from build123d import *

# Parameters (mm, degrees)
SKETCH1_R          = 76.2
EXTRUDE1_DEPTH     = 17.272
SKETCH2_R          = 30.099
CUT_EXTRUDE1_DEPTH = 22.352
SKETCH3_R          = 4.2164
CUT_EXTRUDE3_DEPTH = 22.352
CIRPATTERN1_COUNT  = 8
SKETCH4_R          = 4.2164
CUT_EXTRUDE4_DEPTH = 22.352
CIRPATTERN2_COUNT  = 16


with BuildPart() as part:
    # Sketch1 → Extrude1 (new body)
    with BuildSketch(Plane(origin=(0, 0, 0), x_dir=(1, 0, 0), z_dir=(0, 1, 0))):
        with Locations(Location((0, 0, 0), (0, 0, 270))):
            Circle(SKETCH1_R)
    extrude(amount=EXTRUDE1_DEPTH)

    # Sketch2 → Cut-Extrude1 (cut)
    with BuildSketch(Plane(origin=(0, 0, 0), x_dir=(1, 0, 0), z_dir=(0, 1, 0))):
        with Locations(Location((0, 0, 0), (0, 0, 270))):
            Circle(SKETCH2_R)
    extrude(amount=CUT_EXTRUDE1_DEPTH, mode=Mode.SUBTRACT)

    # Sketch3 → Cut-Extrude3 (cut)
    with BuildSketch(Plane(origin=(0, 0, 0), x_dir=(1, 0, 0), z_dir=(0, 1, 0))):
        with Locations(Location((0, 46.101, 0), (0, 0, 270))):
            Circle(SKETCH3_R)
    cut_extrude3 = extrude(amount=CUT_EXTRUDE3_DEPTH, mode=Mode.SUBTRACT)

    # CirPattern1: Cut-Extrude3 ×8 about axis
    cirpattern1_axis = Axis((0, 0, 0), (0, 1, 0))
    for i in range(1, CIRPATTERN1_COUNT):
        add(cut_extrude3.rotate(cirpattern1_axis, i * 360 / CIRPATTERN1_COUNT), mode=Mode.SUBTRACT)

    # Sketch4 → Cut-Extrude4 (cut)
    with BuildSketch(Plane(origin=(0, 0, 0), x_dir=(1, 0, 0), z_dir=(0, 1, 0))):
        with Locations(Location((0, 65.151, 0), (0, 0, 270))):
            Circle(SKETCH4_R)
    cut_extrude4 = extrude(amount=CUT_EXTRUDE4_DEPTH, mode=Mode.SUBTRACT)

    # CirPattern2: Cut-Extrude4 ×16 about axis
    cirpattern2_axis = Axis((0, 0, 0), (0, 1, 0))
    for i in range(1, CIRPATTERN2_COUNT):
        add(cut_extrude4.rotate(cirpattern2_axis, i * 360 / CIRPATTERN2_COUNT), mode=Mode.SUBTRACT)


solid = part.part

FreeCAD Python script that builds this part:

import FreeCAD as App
import Part
import Sketcher

V = App.Vector
Q = App.Units.Quantity

doc = App.newDocument("Part")
body = doc.addObject("PartDesign::Body", "Body")

sketch1 = doc.addObject("Sketcher::SketchObject", "Sketch")
body.addObject(sketch1)
sketch1.AttachmentSupport = (doc.XZ_Plane, [""])
sketch1.MapMode = "FlatFace"
sketch1.addGeometry(Part.Circle(V(0, 0, 0), V(0, 0, 1), 76), False)
sketch1.addConstraint(Sketcher.Constraint("Coincident", 0, 3, -1, 1))
sketch1.addConstraint(Sketcher.Constraint("Diameter", 0, Q("6 in")))
pad1 = doc.addObject("PartDesign::Pad", "Pad")
body.addObject(pad1)
pad1.Profile = sketch1
pad1.Length = Q("0.68 in")
pad1.Reversed = True

sketch2 = doc.addObject("Sketcher::SketchObject", "Sketch001")
body.addObject(sketch2)
sketch2.AttachmentSupport = (doc.XZ_Plane, [""])
sketch2.MapMode = "FlatFace"
sketch2.addGeometry(Part.Circle(V(0, 0, 0), V(0, 0, 1), 30), False)
sketch2.addConstraint(Sketcher.Constraint("Coincident", 0, 3, -1, 1))
sketch2.addConstraint(Sketcher.Constraint("Diameter", 0, Q("2.37 in")))
pocket1 = doc.addObject("PartDesign::Pocket", "Pocket")
body.addObject(pocket1)
pocket1.Profile = sketch2
pocket1.Length = Q("0.88 in")

sketch3 = doc.addObject("Sketcher::SketchObject", "Sketch002")
body.addObject(sketch3)
sketch3.AttachmentSupport = (doc.XZ_Plane, [""])
sketch3.MapMode = "FlatFace"
sketch3.addGeometry(Part.Circle(V(0, -46.1, 0), V(0, 0, 1), 4.2), False)
sketch3.addConstraint(Sketcher.Constraint("PointOnObject", 0, 3, -2))
sketch3.addConstraint(Sketcher.Constraint("Diameter", 0, Q("0.332 in")))
sketch3.addConstraint(Sketcher.Constraint("DistanceY", 0, 3, -1, 1, Q("1.815 in")))
pocket2 = doc.addObject("PartDesign::Pocket", "Pocket001")
body.addObject(pocket2)
pocket2.Profile = sketch3
pocket2.Length = Q("0.88 in")
doc.recompute()

polarpattern = doc.addObject("PartDesign::PolarPattern", "PolarPattern")
body.addObject(polarpattern)
polarpattern.Originals = [pocket2]
polarpattern.Axis = (doc.Y_Axis, [""])
polarpattern.Angle = 360
polarpattern.Occurrences = 8
body.Tip = polarpattern

sketch4 = doc.addObject("Sketcher::SketchObject", "Sketch003")
body.addObject(sketch4)
sketch4.AttachmentSupport = (doc.XZ_Plane, [""])
sketch4.MapMode = "FlatFace"
sketch4.addGeometry(Part.Circle(V(0, -65.2, 0), V(0, 0, 1), 4.2), False)
sketch4.addConstraint(Sketcher.Constraint("PointOnObject", 0, 3, -2))
sketch4.addConstraint(Sketcher.Constraint("Diameter", 0, Q("0.332 in")))
sketch4.addConstraint(Sketcher.Constraint("DistanceY", 0, 3, -1, 1, Q("2.565 in")))
pocket3 = doc.addObject("PartDesign::Pocket", "Pocket002")
body.addObject(pocket3)
pocket3.Profile = sketch4
pocket3.Length = Q("0.88 in")
doc.recompute()

polarpattern2 = doc.addObject("PartDesign::PolarPattern", "PolarPattern001")
body.addObject(polarpattern2)
polarpattern2.Originals = [pocket3]
polarpattern2.Axis = (doc.Y_Axis, [""])
polarpattern2.Angle = 360
polarpattern2.Occurrences = 16
body.Tip = polarpattern2

doc.recompute()
